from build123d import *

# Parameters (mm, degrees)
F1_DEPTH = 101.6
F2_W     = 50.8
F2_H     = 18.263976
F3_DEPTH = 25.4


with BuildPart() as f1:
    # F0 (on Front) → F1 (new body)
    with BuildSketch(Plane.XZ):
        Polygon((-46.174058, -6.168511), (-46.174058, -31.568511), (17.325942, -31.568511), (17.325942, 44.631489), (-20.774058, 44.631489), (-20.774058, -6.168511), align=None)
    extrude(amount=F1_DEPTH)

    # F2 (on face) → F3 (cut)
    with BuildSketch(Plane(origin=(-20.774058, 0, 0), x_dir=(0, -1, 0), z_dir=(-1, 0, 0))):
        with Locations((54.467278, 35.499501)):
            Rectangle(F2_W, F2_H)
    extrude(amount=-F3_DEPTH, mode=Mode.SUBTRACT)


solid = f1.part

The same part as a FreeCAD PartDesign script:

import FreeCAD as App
import Part
import Sketcher
from FreeCAD import Vector
Q = App.Units.Quantity

doc = App.newDocument("Part")
body = doc.addObject("PartDesign::Body", "Body")

# Sketch on XZ plane
sketch1 = body.newObject("Sketcher::SketchObject", "Sketch")
sketch1.AttachmentSupport = (doc.getObject("XZ_Plane"), [""])
sketch1.MapMode = "FlatFace"
sketch1.addGeometry(Part.LineSegment(Vector(-46, -6, 0), Vector(-46, -32, 0)), False)
sketch1.addGeometry(Part.LineSegment(Vector(-46, -32, 0), Vector(17, -32, 0)), False)
sketch1.addGeometry(Part.LineSegment(Vector(17, -32, 0), Vector(17, 45, 0)), False)
sketch1.addGeometry(Part.LineSegment(Vector(17, 45, 0), Vector(-21, 45, 0)), False)
sketch1.addGeometry(Part.LineSegment(Vector(-21, 45, 0), Vector(-21, -6, 0)), False)
sketch1.addGeometry(Part.LineSegment(Vector(-21, -6, 0), Vector(-46, -6, 0)), False)
sketch1.addConstraint(Sketcher.Constraint("Coincident", 0, 2, 1, 1))
sketch1.addConstraint(Sketcher.Constraint("Coincident", 1, 2, 2, 1))
sketch1.addConstraint(Sketcher.Constraint("Coincident", 2, 2, 3, 1))
sketch1.addConstraint(Sketcher.Constraint("Coincident", 3, 2, 4, 1))
sketch1.addConstraint(Sketcher.Constraint("Coincident", 4, 2, 5, 1))
sketch1.addConstraint(Sketcher.Constraint("Coincident", 5, 2, 0, 1))
sketch1.addConstraint(Sketcher.Constraint("Vertical", 0))
sketch1.addConstraint(Sketcher.Constraint("Horizontal", 1))
sketch1.addConstraint(Sketcher.Constraint("Vertical", 2))
sketch1.addConstraint(Sketcher.Constraint("Horizontal", 3))
sketch1.addConstraint(Sketcher.Constraint("Vertical", 4))
sketch1.addConstraint(Sketcher.Constraint("Horizontal", 5))
sketch1.addConstraint(Sketcher.Constraint("Equal", 5, 0))
sketch1.addConstraint(Sketcher.Constraint("DistanceX", 5, 2, 5, 1, Q("1 in")))
sketch1.addConstraint(Sketcher.Constraint("DistanceY", 2, 1, 2, 2, Q("3 in")))
sketch1.addConstraint(Sketcher.Constraint("DistanceX", 1, 1, 1, 2, Q("2.5 in")))
sketch1.addConstraint(Sketcher.Constraint("DistanceX", 0, 2, -1, 1, 46.174058))
sketch1.addConstraint(Sketcher.Constraint("DistanceY", 0, 2, -1, 1, 31.568511))
pad1 = body.newObject("PartDesign::Pad", "Pad")
pad1.Profile = sketch1
pad1.Length = Q("4 in")

# Sketch on YZ plane
sketch2 = body.newObject("Sketcher::SketchObject", "Sketch001")
sketch2.AttachmentSupport = (doc.getObject("YZ_Plane"), [""])
sketch2.MapMode = "FlatFace"
sketch2.AttachmentOffset = App.Placement(Vector(0, 0, -20.774058), App.Rotation())
sketch2.addGeometry(Part.LineSegment(Vector(-29, 45, 0), Vector(-29, 26, 0)), False)
sketch2.addGeometry(Part.LineSegment(Vector(-29, 26, 0), Vector(-80, 26, 0)), False)
sketch2.addGeometry(Part.LineSegment(Vector(-80, 26, 0), Vector(-80, 45, 0)), False)
sketch2.addGeometry(Part.LineSegment(Vector(-80, 45, 0), Vector(-29, 45, 0)), False)
sketch2.addConstraint(Sketcher.Constraint("Coincident", 0, 2, 1, 1))
sketch2.addConstraint(Sketcher.Constraint("Coincident", 1, 2, 2, 1))
sketch2.addConstraint(Sketcher.Constraint("Coincident", 2, 2, 3, 1))
sketch2.addConstraint(Sketcher.Constraint("Coincident", 3, 2, 0, 1))
sketch2.addConstraint(Sketcher.Constraint("Vertical", 0))
sketch2.addConstraint(Sketcher.Constraint("Horizontal", 1))
sketch2.addConstraint(Sketcher.Constraint("Vertical", 2))
sketch2.addConstraint(Sketcher.Constraint("Horizontal", 3))
sketch2.addConstraint(Sketcher.Constraint("DistanceX", 1, 2, 1, 1, Q("2 in")))
sketch2.addConstraint(Sketcher.Constraint("DistanceY", 0, 2, 0, 1, 18.263976))
sketch2.addConstraint(Sketcher.Constraint("DistanceX", 0, 2, -1, 1, 29.067278))
sketch2.addConstraint(Sketcher.Constraint("DistanceY", -1, 1, 2, 2, 44.631489))
pocket1 = body.newObject("PartDesign::Pocket", "Pocket")
pocket1.Profile = sketch2
pocket1.Length = Q("1 in")
pocket1.Reversed = True

doc.recompute()
